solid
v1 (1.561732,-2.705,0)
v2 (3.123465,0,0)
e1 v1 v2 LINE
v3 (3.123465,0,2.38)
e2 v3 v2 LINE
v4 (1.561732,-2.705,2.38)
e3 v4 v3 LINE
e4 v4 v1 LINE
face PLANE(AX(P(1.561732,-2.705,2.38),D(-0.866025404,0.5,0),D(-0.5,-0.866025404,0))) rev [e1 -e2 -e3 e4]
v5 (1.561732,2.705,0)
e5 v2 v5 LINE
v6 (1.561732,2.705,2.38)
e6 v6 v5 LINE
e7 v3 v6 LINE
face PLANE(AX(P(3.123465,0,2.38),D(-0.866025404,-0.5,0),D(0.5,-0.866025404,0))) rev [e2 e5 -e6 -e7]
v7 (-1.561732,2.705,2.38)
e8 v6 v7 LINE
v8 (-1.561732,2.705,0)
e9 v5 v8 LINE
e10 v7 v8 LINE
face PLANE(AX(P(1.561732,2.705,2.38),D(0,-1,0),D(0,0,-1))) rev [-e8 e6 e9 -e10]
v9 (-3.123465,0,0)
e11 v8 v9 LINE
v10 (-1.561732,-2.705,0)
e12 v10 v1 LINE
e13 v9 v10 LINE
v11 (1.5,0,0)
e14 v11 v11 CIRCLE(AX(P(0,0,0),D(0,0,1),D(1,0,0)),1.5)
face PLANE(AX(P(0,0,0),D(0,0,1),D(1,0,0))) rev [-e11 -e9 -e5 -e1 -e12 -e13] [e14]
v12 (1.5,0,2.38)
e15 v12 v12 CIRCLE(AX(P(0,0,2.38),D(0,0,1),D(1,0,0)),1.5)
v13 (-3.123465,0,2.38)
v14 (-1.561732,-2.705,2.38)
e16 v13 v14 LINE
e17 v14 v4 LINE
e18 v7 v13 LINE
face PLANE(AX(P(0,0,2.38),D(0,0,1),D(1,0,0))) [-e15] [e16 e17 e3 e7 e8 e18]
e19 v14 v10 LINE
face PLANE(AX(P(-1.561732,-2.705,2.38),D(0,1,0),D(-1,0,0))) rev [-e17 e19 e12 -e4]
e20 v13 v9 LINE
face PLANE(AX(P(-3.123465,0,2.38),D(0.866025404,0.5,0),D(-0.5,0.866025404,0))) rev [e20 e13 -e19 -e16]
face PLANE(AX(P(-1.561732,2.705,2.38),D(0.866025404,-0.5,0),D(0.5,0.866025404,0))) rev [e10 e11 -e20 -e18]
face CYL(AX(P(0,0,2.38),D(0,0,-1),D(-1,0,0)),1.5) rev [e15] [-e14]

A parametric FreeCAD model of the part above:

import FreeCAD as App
import Part
import Sketcher

V = App.Vector
Q = App.Units.Quantity

doc = App.newDocument("Part")
params = doc.addObject("Spreadsheet::Sheet", "Params")
for row, (alias, value) in enumerate([
    ("sketch1_diameter", "3 mm"),
    ("pad1_length", "2.38 mm"),
], start=1):
    params.set(f"A{row}", alias)
    params.set(f"B{row}", "=" + value)
    params.setAlias(f"B{row}", alias)

body = doc.addObject("PartDesign::Body", "Body")

# Sketch on XY plane
sketch1 = body.newObject("Sketcher::SketchObject", "Sketch")
sketch1.AttachmentSupport = (doc.getObject("XY_Plane"), [""])
sketch1.MapMode = "FlatFace"
sketch1.addGeometry(Part.LineSegment(V(1.6, -2.7, 0), V(3.1, 0, 0)), False)
sketch1.addGeometry(Part.LineSegment(V(3.1, 0, 0), V(1.6, 2.7, 0)), False)
sketch1.addGeometry(Part.LineSegment(V(1.6, 2.7, 0), V(-1.6, 2.7, 0)), False)
sketch1.addGeometry(Part.LineSegment(V(-1.6, 2.7, 0), V(-3.1, 0, 0)), False)
sketch1.addGeometry(Part.LineSegment(V(-3.1, 0, 0), V(-1.6, -2.7, 0)), False)
sketch1.addGeometry(Part.LineSegment(V(-1.6, -2.7, 0), V(1.6, -2.7, 0)), False)
sketch1.addGeometry(Part.Circle(V(0, 0, 0), V(0, 0, 1), 1.5), False)
sketch1.addConstraint(Sketcher.Constraint("Coincident", 0, 2, 1, 1))
sketch1.addConstraint(Sketcher.Constraint("Coincident", 1, 2, 2, 1))
sketch1.addConstraint(Sketcher.Constraint("Coincident", 2, 2, 3, 1))
sketch1.addConstraint(Sketcher.Constraint("Coincident", 3, 2, 4, 1))
sketch1.addConstraint(Sketcher.Constraint("Coincident", 4, 2, 5, 1))
sketch1.addConstraint(Sketcher.Constraint("Coincident", 5, 2, 0, 1))
sketch1.addConstraint(Sketcher.Constraint("Horizontal", 2))
sketch1.addConstraint(Sketcher.Constraint("Horizontal", 5))
sketch1.addConstraint(Sketcher.Constraint("Coincident", 6, 3, -1, 1))
sketch1.addConstraint(Sketcher.Constraint("Symmetric", 0, 2, 3, 2, -1, 1))
sketch1.addConstraint(Sketcher.Constraint("Symmetric", 1, 2, 4, 2, -1, 1))
sketch1.addConstraint(Sketcher.Constraint("PointOnObject", 0, 2, -1))
sketch1.addConstraint(Sketcher.Constraint("Parallel", 0, 3))
sketch1.addConstraint(Sketcher.Constraint("Vertical", 2, 2, 4, 2))
sketch1.addConstraint(Sketcher.Constraint("Diameter", 6, 3.0))
sketch1.addConstraint(Sketcher.Constraint("Angle", 0, Q("60 deg")))
sketch1.addConstraint(Sketcher.Constraint("DistanceY", 4, 2, 2, 2, 5.41))
sketch1.addConstraint(Sketcher.Constraint("DistanceX", 2, 2, 2, 1, 3.123465))
sketch1.setExpression("Constraints[14]", "Params.sketch1_diameter")
pad1 = body.newObject("PartDesign::Pad", "Pad")
pad1.Profile = sketch1
pad1.setExpression("Length", "Params.pad1_length")

doc.recompute()
